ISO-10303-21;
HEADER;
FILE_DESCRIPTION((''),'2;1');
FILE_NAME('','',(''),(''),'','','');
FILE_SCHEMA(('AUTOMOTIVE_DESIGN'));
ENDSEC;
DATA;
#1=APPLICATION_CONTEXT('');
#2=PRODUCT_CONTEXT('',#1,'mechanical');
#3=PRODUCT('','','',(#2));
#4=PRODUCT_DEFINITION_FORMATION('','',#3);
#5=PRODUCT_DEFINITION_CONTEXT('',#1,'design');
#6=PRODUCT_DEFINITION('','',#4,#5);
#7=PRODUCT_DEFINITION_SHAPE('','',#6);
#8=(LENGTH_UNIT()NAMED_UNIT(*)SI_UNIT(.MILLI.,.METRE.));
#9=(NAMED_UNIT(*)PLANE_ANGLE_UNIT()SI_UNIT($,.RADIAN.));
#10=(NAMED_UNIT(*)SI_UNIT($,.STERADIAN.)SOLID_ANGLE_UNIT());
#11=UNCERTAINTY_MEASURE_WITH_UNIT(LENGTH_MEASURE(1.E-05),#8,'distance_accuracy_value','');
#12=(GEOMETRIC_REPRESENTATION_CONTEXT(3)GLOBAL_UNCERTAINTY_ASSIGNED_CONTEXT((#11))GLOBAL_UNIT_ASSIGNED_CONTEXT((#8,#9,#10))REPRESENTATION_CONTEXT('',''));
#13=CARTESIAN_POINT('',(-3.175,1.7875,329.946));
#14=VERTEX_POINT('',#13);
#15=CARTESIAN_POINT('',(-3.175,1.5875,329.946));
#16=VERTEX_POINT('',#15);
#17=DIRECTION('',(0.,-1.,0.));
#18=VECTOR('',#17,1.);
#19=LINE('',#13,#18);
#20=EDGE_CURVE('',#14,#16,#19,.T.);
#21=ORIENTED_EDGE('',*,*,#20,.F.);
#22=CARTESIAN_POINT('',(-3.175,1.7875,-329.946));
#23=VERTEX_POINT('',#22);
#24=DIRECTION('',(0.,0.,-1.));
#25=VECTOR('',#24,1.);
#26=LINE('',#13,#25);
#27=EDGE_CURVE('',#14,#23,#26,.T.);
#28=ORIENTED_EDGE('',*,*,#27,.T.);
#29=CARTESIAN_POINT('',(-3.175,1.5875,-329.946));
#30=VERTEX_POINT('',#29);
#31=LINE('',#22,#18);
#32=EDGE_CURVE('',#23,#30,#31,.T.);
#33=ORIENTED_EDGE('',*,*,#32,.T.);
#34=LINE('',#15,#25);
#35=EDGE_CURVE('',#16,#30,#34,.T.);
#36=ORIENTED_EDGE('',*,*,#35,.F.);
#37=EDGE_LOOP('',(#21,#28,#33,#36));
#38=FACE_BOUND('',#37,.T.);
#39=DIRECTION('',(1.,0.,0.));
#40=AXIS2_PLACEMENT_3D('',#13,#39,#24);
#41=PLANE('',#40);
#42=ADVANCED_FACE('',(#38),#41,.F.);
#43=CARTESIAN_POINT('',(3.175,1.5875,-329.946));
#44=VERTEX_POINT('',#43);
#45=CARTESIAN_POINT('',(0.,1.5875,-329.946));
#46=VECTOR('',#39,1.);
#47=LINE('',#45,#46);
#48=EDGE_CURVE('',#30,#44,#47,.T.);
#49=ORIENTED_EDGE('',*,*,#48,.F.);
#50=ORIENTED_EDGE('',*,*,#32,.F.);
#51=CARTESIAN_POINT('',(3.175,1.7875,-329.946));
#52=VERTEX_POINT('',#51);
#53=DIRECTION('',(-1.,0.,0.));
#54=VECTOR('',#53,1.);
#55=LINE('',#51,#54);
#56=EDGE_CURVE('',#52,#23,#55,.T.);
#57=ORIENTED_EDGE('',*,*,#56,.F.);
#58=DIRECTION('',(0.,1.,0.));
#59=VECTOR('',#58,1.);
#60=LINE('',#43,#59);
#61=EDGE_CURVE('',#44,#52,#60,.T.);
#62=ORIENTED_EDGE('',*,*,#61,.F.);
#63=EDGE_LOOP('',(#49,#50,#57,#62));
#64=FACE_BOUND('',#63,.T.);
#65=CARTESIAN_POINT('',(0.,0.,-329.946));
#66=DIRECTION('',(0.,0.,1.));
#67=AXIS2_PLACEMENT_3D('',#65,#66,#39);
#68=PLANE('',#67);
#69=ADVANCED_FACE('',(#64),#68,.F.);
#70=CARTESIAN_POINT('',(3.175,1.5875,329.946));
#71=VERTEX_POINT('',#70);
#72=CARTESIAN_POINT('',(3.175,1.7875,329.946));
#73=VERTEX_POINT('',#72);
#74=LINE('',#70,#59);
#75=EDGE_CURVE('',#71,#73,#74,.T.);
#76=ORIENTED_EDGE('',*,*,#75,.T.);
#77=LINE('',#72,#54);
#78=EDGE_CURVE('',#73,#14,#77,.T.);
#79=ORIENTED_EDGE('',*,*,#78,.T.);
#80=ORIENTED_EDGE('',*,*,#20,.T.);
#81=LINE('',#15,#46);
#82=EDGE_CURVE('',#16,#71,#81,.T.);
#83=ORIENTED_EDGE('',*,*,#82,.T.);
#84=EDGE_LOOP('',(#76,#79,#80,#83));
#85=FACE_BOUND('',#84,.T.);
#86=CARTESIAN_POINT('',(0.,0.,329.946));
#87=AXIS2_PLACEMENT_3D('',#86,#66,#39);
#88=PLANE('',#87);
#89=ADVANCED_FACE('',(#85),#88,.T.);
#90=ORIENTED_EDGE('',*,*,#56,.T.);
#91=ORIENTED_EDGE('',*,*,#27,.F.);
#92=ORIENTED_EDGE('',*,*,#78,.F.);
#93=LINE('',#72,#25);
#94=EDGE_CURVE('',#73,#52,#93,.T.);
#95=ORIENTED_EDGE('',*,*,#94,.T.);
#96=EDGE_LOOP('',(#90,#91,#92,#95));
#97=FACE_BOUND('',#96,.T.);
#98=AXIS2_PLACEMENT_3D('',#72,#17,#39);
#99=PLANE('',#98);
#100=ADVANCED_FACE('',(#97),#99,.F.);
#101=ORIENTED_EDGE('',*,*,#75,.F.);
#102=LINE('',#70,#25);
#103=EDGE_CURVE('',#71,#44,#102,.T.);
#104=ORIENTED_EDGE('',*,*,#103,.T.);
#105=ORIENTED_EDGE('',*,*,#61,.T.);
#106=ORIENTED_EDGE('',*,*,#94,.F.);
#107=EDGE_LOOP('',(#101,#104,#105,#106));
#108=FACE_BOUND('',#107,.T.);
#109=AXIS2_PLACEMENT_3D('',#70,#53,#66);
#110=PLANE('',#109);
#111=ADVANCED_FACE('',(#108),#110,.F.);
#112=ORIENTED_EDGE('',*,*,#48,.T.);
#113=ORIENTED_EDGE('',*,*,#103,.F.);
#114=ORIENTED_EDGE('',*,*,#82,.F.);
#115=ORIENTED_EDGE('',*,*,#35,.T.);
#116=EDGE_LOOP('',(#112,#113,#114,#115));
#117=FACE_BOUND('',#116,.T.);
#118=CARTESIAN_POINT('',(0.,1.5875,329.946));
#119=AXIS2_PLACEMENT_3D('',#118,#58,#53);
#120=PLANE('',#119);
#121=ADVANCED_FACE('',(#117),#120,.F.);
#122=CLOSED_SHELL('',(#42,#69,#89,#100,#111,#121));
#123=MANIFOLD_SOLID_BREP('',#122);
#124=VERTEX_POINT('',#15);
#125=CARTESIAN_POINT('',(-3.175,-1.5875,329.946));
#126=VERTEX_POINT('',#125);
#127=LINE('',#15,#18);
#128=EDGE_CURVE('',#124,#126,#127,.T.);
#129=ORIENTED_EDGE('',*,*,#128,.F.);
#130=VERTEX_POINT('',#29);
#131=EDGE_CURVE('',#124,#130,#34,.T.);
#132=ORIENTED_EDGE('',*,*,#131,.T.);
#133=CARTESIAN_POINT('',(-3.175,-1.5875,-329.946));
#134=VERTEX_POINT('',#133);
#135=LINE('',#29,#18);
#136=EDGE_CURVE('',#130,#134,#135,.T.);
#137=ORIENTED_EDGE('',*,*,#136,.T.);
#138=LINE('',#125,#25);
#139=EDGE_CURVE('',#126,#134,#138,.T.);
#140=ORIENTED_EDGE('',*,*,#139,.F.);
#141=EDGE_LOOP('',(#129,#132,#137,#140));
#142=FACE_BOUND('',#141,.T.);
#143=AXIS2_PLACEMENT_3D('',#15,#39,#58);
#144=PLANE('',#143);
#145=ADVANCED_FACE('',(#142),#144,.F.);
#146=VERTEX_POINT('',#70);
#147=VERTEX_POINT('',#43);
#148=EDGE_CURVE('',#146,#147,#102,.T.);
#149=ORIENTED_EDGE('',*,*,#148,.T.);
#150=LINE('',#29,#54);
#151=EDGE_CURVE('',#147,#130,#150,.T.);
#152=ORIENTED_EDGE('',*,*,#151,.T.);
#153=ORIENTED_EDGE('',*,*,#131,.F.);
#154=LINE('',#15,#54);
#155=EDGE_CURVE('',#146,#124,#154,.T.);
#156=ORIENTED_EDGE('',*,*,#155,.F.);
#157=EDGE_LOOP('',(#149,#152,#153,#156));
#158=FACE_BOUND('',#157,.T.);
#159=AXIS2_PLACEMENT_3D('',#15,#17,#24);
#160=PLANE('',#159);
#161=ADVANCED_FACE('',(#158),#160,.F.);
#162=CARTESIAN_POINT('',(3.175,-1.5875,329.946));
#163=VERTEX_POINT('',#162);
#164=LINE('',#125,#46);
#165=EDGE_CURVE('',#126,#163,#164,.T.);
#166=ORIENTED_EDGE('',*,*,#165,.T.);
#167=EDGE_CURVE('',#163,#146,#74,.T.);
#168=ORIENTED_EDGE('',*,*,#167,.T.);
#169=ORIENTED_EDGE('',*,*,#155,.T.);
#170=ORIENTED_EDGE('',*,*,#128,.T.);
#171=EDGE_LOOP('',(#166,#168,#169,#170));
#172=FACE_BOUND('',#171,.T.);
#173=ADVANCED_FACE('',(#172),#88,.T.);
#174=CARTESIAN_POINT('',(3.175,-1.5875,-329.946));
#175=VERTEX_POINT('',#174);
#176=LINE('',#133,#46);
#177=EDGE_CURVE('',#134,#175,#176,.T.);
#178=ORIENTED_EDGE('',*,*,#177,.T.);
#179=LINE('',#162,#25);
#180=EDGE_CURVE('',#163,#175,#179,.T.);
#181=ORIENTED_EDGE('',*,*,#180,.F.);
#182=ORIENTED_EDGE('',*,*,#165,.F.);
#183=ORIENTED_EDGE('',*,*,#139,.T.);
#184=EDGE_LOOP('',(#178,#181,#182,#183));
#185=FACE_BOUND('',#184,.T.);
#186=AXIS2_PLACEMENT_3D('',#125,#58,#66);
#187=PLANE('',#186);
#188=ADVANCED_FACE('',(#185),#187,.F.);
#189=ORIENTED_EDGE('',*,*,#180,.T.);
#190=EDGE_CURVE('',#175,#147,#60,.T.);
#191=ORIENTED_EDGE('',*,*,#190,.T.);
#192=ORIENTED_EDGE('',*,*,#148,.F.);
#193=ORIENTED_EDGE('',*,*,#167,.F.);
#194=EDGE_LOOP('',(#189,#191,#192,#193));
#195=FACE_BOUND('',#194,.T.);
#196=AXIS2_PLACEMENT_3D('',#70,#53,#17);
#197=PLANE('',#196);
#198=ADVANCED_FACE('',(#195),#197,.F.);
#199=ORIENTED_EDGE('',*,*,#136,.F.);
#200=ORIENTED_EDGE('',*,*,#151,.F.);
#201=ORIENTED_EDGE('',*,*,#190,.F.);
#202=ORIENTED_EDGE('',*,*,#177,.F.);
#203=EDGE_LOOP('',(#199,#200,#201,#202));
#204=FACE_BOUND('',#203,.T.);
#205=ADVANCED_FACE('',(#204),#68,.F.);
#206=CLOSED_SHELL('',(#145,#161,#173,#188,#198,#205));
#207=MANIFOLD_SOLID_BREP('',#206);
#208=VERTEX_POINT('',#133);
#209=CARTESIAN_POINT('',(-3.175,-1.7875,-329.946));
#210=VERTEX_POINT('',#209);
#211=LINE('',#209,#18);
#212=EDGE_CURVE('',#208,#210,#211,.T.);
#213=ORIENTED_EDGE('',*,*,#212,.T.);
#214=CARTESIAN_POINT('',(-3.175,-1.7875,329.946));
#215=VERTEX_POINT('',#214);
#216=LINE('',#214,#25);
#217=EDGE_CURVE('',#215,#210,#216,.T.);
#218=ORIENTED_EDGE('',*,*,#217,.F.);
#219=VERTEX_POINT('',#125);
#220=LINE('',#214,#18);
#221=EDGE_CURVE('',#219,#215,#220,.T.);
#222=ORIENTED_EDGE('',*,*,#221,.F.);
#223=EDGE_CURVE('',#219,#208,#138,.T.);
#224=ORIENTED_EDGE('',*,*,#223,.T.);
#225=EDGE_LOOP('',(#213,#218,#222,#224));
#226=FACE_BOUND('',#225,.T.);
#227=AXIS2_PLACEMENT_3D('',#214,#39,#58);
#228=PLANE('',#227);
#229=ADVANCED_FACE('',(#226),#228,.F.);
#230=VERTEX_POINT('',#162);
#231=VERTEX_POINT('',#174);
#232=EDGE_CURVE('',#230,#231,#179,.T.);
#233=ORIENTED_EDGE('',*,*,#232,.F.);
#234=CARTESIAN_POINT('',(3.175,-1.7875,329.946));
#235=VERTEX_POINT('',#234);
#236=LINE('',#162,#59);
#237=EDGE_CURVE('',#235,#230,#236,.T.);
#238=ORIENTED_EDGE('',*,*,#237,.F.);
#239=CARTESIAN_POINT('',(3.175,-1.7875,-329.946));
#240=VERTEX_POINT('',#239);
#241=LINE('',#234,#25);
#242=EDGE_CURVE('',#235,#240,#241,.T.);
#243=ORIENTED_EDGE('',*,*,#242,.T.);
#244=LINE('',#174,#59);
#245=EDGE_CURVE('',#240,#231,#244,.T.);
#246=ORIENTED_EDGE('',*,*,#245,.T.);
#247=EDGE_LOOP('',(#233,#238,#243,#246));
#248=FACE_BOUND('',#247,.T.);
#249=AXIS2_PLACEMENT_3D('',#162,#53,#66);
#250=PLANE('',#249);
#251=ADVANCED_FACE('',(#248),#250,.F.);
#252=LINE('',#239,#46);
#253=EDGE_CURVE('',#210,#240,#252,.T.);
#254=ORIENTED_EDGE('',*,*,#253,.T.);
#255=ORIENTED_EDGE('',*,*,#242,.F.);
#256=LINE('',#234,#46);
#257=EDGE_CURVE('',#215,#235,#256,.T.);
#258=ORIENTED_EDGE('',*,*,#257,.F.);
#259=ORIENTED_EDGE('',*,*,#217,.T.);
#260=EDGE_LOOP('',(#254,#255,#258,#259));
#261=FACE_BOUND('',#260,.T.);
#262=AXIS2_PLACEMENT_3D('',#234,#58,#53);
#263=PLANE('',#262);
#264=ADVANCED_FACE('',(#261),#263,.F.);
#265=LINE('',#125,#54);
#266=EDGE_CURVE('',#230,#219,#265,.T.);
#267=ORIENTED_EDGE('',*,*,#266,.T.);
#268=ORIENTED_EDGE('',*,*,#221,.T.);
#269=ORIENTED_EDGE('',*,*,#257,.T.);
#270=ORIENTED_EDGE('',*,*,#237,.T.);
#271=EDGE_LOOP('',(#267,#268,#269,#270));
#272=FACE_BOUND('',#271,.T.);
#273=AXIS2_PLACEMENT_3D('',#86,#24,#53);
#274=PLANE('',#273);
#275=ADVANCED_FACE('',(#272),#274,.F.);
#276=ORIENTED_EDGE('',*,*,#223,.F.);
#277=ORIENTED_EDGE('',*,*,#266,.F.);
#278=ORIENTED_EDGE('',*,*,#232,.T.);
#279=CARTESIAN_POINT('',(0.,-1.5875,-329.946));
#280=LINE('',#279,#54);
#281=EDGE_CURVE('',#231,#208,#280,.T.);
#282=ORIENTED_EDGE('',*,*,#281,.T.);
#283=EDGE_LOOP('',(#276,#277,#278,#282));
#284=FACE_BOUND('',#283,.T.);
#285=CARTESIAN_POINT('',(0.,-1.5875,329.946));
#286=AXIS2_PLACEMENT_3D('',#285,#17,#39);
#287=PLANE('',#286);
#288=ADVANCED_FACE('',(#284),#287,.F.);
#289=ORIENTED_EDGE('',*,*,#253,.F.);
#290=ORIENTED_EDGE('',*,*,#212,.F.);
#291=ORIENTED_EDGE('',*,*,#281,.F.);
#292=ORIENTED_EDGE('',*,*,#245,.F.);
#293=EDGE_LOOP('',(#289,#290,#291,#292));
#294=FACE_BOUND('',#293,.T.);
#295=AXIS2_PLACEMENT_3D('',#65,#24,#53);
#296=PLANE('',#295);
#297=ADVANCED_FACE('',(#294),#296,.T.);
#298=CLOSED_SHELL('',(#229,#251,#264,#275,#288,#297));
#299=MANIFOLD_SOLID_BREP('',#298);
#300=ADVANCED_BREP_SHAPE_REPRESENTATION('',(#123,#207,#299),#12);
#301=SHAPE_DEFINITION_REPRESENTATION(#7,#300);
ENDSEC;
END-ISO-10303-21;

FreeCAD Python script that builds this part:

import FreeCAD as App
import Part
import Sketcher
from FreeCAD import Vector
Q = App.Units.Quantity


def add_polygon(sketch, points):
    """Adds a closed chain of lines whose ends are joined by coincident constraints."""
    first, n = sketch.GeometryCount, len(points)
    for a, b in zip(points, points[1:] + points[:1]):
        sketch.addGeometry(Part.LineSegment(App.Vector(*a, 0), App.Vector(*b, 0)), False)
    for i in range(n):
        sketch.addConstraint(Sketcher.Constraint("Coincident", first + i, 2, first + (i + 1) % n, 1))

doc = App.newDocument("Part")
body = doc.addObject("PartDesign::Body", "Body")

# Sketch on XY plane
sketch1 = body.newObject("Sketcher::SketchObject", "Sketch")
sketch1.AttachmentSupport = (doc.getObject("XY_Plane"), [""])
sketch1.MapMode = "FlatFace"
add_polygon(sketch1, [(-3.2, 1.6), (-3.2, -1.6), (3.2, -1.6), (3.2, 1.6)])  # lines 0-3
sketch1.addConstraint([
    Sketcher.Constraint("Vertical", 0),
    Sketcher.Constraint("Horizontal", 1),
    Sketcher.Constraint("Vertical", 2),
    Sketcher.Constraint("Horizontal", 3),
    Sketcher.Constraint("Symmetric", 0, 2, 2, 2, -1, 1),
    Sketcher.Constraint("DistanceX", 1, 1, 1, 2, Q("0.25 in")),
    Sketcher.Constraint("DistanceY", 0, 2, 0, 1, Q("0.125 in")),
])
pad1 = body.newObject("PartDesign::Pad", "Pad")
pad1.Profile = sketch1
pad1.Length = Q("25.98 in")
pad1.Midplane = True
body2 = doc.addObject("PartDesign::Body", "Body001")

# Sketch on XY plane
sketch2 = body2.newObject("Sketcher::SketchObject", "Sketch001")
sketch2.AttachmentSupport = (doc.getObject("XY_Plane001"), [""])
sketch2.MapMode = "FlatFace"
add_polygon(sketch2, [(3.17, 1.59), (3.17, 1.79), (-3.17, 1.79), (-3.17, 1.59)])  # lines 0-3
sketch2.addConstraint([
    Sketcher.Constraint("Vertical", 0),
    Sketcher.Constraint("Horizontal", 1),
    Sketcher.Constraint("Vertical", 2),
    Sketcher.Constraint("Horizontal", 3),
    Sketcher.Constraint("DistanceX", 1, 2, 1, 1, Q("0.25 in")),
    Sketcher.Constraint("DistanceX", -1, 1, 0, 2, Q("0.125 in")),
    Sketcher.Constraint("DistanceY", -1, 1, 2, 2, Q("0.0625 in")),
    Sketcher.Constraint("DistanceY", 0, 1, 0, 2, 0.2),
])
pad2 = body2.newObject("PartDesign::Pad", "Pad001")
pad2.Profile = sketch2
pad2.Length = Q("25.98 in")
pad2.Midplane = True
body3 = doc.addObject("PartDesign::Body", "Body002")

# Sketch on XY plane
sketch3 = body3.newObject("Sketcher::SketchObject", "Sketch002")
sketch3.AttachmentSupport = (doc.getObject("XY_Plane002"), [""])
sketch3.MapMode = "FlatFace"
add_polygon(sketch3, [(3.17, -1.59), (-3.17, -1.59), (-3.17, -1.79), (3.17, -1.79)])  # lines 0-3
sketch3.addConstraint([
    Sketcher.Constraint("Horizontal", 0),
    Sketcher.Constraint("Vertical", 1),
    Sketcher.Constraint("Horizontal", 2),
    Sketcher.Constraint("Vertical", 3),
    Sketcher.Constraint("DistanceX", 0, 2, 0, 1, Q("0.25 in")),
    Sketcher.Constraint("DistanceX", 0, 2, -1, 1, Q("0.125 in")),
    Sketcher.Constraint("DistanceY", 0, 2, -1, 1, Q("0.0625 in")),
    Sketcher.Constraint("DistanceY", 1, 2, 1, 1, 0.2),
])
pad3 = body3.newObject("PartDesign::Pad", "Pad002")
pad3.Profile = sketch3
pad3.Length = Q("25.98 in")
pad3.Midplane = True

doc.recompute()
